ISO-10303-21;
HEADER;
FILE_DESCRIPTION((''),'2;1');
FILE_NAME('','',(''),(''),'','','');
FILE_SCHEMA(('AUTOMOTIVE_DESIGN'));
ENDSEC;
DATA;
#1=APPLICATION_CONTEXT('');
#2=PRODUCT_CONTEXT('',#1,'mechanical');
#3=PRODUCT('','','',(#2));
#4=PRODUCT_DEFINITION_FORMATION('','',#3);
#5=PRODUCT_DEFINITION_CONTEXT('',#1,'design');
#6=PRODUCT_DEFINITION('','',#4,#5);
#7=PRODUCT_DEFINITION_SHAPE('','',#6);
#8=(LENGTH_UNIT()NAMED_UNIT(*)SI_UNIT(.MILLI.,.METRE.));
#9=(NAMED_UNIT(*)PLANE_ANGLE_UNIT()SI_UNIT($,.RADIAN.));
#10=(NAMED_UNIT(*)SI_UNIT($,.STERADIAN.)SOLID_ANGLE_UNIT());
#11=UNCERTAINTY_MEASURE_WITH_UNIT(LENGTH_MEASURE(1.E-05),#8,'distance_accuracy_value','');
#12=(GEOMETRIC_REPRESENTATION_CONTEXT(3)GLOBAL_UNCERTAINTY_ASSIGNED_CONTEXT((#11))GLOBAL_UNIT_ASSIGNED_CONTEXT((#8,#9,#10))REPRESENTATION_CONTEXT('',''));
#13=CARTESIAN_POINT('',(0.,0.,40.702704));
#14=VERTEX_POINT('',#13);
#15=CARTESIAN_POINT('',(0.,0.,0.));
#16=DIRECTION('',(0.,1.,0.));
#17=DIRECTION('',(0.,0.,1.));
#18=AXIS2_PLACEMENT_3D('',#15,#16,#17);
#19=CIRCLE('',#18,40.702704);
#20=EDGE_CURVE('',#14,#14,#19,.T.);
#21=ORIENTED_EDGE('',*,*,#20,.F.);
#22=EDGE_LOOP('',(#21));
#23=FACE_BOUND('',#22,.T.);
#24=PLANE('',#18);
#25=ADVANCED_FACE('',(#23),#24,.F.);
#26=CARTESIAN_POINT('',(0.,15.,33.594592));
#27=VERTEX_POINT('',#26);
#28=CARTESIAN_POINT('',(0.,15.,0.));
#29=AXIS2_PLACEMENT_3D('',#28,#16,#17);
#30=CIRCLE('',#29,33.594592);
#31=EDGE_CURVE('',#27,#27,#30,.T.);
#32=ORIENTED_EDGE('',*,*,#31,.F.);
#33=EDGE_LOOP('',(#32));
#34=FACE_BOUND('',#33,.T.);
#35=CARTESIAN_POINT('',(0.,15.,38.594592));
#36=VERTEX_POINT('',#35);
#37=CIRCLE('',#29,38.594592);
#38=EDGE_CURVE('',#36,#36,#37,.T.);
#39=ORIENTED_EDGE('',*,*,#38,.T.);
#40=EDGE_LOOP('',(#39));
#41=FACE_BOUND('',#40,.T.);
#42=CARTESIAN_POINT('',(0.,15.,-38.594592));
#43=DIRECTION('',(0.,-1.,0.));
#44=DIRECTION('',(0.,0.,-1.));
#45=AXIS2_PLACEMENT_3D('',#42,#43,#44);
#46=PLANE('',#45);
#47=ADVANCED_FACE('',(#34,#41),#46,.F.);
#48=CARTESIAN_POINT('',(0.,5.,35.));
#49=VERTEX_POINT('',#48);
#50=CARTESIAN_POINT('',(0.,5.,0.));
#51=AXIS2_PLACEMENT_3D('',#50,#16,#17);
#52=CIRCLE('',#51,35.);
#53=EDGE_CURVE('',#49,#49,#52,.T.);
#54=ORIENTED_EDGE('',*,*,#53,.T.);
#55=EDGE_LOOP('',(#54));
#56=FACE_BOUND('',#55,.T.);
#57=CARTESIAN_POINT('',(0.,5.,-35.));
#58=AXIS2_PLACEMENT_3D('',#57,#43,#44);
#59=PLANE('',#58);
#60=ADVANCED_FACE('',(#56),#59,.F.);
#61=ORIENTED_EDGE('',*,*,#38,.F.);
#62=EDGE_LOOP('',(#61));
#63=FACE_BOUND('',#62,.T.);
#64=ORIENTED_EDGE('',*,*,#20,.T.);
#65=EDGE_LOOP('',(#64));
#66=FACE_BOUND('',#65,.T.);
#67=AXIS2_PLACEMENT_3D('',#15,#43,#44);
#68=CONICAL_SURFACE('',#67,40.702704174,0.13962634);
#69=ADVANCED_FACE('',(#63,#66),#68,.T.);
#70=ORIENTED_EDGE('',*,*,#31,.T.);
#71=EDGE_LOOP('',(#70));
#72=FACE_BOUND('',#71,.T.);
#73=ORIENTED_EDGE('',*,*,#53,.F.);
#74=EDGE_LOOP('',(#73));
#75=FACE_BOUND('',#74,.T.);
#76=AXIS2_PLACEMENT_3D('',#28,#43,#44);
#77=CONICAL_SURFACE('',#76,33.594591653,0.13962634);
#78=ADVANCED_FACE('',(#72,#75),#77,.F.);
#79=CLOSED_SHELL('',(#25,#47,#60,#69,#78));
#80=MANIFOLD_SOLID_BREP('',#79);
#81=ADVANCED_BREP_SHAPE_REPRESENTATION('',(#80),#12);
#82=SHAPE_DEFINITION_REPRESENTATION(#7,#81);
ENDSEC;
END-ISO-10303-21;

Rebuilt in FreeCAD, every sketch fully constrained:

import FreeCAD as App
import Part
import Sketcher

V = App.Vector
Q = App.Units.Quantity


def add_polygon(sketch, points):
    """Adds a closed chain of lines whose ends are joined by coincident constraints."""
    first, n = sketch.GeometryCount, len(points)
    for a, b in zip(points, points[1:] + points[:1]):
        sketch.addGeometry(Part.LineSegment(App.Vector(*a, 0), App.Vector(*b, 0)), False)
    for i in range(n):
        sketch.addConstraint(Sketcher.Constraint("Coincident", first + i, 2, first + (i + 1) % n, 1))

doc = App.newDocument("Part")
params = doc.addObject("Spreadsheet::Sheet", "Params")
for row, (alias, value) in enumerate([
    ("sketch1_width", "5 mm"),
    ("sketch1_height", "35 mm"),
    ("revolution_angle", "360 deg"),
], start=1):
    params.set(f"A{row}", alias)
    params.set(f"B{row}", "=" + value)
    params.setAlias(f"B{row}", alias)

body = doc.addObject("PartDesign::Body", "Body")

# Sketch on YZ plane
sketch1 = body.newObject("Sketcher::SketchObject", "Sketch")
sketch1.AttachmentSupport = (doc.getObject("YZ_Plane"), [""])
sketch1.MapMode = "FlatFace"
add_polygon(sketch1, [(0, 0), (0, -41), (15, -39), (15, -34), (5, -35), (5, 0)])  # lines 0-5
sketch1.addConstraint([
    Sketcher.Constraint("Vertical", 0),
    Sketcher.Constraint("Vertical", 2),
    Sketcher.Constraint("Vertical", 4),
    Sketcher.Constraint("Horizontal", 5),
    Sketcher.Constraint("Coincident", 5, 2, -1, 1),
    Sketcher.Constraint("Parallel", 1, 3),
    Sketcher.Constraint("Equal", 5, 2),
    Sketcher.Constraint("DistanceX", 5, 2, 5, 1, Q("5 mm")),
    Sketcher.Constraint("DistanceY", 4, 1, 4, 2, Q("35 mm")),
    Sketcher.Constraint("Angle", 1, Q("8 deg")),
    Sketcher.Constraint("DistanceX", -1, 1, 1, 2, Q("15 mm")),
])
sketch1.setExpression("Constraints[13]", "Params.sketch1_width")
sketch1.setExpression("Constraints[14]", "Params.sketch1_height")
revolution = body.newObject("PartDesign::Revolution", "Revolution")
revolution.Profile = sketch1
revolution.ReferenceAxis = (sketch1, ["H_Axis"])
revolution.setExpression("Angle", "Params.revolution_angle")

doc.recompute()
